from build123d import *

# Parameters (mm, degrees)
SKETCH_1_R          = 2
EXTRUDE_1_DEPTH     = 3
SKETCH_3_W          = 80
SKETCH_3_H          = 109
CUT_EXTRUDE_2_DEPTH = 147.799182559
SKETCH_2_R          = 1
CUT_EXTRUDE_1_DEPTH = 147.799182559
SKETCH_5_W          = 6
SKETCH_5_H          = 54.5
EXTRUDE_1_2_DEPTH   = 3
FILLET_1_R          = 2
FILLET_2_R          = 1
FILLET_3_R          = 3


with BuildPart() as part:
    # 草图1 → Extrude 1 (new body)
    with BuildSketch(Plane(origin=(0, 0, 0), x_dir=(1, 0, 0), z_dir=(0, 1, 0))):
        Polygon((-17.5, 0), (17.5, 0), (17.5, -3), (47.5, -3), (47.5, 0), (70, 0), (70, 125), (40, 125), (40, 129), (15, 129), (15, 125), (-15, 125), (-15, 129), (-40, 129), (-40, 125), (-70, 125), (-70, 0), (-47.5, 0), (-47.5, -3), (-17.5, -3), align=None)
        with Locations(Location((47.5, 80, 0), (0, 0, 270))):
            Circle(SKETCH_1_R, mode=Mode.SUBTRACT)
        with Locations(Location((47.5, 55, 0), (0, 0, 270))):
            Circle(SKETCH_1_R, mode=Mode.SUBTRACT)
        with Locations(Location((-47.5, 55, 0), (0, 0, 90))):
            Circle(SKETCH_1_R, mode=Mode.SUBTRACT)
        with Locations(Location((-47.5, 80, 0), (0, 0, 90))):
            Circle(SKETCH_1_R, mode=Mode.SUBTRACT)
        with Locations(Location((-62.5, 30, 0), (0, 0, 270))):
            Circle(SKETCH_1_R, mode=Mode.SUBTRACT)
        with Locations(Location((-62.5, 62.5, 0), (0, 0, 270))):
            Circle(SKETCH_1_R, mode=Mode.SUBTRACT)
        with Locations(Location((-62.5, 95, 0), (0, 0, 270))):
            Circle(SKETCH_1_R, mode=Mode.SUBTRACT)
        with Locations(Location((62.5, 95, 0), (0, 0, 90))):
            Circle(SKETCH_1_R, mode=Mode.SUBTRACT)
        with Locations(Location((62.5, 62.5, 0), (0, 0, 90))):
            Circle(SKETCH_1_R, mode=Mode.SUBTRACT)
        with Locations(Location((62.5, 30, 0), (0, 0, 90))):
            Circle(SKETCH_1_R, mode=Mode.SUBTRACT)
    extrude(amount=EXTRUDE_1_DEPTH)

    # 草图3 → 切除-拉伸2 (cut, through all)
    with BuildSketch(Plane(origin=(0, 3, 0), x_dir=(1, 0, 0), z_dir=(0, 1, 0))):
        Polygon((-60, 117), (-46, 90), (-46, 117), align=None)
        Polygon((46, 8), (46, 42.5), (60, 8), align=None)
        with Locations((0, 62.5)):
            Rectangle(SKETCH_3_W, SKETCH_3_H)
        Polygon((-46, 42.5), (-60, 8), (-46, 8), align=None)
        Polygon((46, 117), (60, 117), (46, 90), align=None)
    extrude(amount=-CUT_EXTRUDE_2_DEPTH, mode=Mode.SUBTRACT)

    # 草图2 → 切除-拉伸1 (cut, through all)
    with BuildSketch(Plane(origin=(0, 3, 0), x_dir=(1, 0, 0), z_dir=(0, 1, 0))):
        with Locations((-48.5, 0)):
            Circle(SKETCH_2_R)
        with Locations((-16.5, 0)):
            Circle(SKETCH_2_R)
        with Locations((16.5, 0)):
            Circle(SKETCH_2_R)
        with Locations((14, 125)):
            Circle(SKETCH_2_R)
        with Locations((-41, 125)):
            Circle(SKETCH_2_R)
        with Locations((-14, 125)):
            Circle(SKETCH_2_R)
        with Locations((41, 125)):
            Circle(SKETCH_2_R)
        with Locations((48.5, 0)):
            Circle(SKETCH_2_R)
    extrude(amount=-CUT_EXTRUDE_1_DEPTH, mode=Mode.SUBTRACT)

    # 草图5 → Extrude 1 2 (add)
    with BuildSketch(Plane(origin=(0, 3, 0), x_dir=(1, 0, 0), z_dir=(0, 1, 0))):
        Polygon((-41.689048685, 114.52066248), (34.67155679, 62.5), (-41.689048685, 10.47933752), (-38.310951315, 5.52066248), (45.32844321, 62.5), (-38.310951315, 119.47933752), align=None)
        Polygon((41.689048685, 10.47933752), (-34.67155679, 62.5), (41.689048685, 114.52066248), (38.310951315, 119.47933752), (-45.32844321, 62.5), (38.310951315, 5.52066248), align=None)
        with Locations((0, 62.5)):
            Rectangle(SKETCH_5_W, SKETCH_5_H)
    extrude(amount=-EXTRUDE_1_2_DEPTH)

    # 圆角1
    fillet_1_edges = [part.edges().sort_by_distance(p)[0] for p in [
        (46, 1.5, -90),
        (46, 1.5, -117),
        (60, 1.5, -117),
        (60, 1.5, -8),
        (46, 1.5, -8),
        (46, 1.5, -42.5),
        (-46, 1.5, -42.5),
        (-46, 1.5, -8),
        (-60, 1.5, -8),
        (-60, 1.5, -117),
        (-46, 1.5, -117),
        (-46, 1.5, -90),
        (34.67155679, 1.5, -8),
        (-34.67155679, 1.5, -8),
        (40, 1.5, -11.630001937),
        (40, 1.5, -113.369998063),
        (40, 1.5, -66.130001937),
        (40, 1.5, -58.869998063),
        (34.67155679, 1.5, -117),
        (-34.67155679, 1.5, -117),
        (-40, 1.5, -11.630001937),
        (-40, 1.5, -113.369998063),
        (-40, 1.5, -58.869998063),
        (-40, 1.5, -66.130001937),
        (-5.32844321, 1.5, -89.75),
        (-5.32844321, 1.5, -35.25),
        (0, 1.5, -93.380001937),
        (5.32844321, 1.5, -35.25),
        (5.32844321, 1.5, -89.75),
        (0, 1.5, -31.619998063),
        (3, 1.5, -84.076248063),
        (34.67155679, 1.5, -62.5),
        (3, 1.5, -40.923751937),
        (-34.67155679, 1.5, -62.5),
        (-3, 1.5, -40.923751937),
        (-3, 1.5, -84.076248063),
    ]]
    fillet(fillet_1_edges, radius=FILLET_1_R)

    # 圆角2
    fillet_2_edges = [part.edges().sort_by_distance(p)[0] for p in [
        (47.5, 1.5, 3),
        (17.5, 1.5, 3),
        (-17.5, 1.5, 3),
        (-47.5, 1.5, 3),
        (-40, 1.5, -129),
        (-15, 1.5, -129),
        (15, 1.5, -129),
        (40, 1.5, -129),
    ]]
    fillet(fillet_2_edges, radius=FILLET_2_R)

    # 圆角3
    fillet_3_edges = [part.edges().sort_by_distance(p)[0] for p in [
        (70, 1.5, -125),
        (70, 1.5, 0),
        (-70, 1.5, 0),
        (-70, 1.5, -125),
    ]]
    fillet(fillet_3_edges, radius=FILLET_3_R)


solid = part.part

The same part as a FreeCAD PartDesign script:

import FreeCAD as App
import Part
import Sketcher


def edges_at(feature, points):
    """Names of the edges that pass closest to the given points."""
    edges = feature.Shape.Edges
    near = lambda p: min(range(len(edges)), key=lambda i: edges[i].distToShape(Part.Vertex(*p))[0])
    return sorted({f"Edge{near(p) + 1}" for p in points})

doc = App.newDocument("Part")
body = doc.addObject("PartDesign::Body", "Body")

# Sketch on XZ plane
sketch1 = body.newObject("Sketcher::SketchObject", "Sketch")
sketch1.AttachmentSupport = (doc.getObject("XZ_Plane"), [""])
sketch1.MapMode = "FlatFace"
sketch1.addGeometry([
    Part.LineSegment(App.Vector(-17.5, 0, 0), App.Vector(17.5, 0, 0)),  # 0
    Part.LineSegment(App.Vector(17.5, 0, 0), App.Vector(17.5, 3, 0)),  # 1
    Part.LineSegment(App.Vector(17.5, 3, 0), App.Vector(47.5, 3, 0)),  # 2
    Part.LineSegment(App.Vector(47.5, 3, 0), App.Vector(47.5, 0, 0)),  # 3
    Part.LineSegment(App.Vector(47.5, 0, 0), App.Vector(70, 0, 0)),  # 4
    Part.LineSegment(App.Vector(70, 0, 0), App.Vector(70, -125, 0)),  # 5
    Part.LineSegment(App.Vector(70, -125, 0), App.Vector(40, -125, 0)),  # 6
    Part.LineSegment(App.Vector(40, -125, 0), App.Vector(40, -129, 0)),  # 7
    Part.LineSegment(App.Vector(40, -129, 0), App.Vector(15, -129, 0)),  # 8
    Part.LineSegment(App.Vector(15, -129, 0), App.Vector(15, -125, 0)),  # 9
    Part.LineSegment(App.Vector(15, -125, 0), App.Vector(-15, -125, 0)),  # 10
    Part.LineSegment(App.Vector(-15, -125, 0), App.Vector(-15, -129, 0)),  # 11
    Part.LineSegment(App.Vector(-15, -129, 0), App.Vector(-40, -129, 0)),  # 12
    Part.LineSegment(App.Vector(-40, -129, 0), App.Vector(-40, -125, 0)),  # 13
    Part.LineSegment(App.Vector(-40, -125, 0), App.Vector(-70, -125, 0)),  # 14
    Part.LineSegment(App.Vector(-70, -125, 0), App.Vector(-70, 0, 0)),  # 15
    Part.LineSegment(App.Vector(-70, 0, 0), App.Vector(-47.5, 0, 0)),  # 16
    Part.LineSegment(App.Vector(-47.5, 0, 0), App.Vector(-47.5, 3, 0)),  # 17
    Part.LineSegment(App.Vector(-47.5, 3, 0), App.Vector(-17.5, 3, 0)),  # 18
    Part.LineSegment(App.Vector(-17.5, 3, 0), App.Vector(-17.5, 0, 0)),  # 19
    Part.Circle(App.Vector(-62.5, -30, 0), App.Vector(0, 0, 1), 2),  # 20
    Part.Circle(App.Vector(-47.5, -55, 0), App.Vector(0, 0, 1), 2),  # 21
    Part.Circle(App.Vector(62.5, -30, 0), App.Vector(0, 0, 1), 2),  # 22
    Part.Circle(App.Vector(47.5, -55, 0), App.Vector(0, 0, 1), 2),  # 23
    Part.Circle(App.Vector(-62.5, -62.5, 0), App.Vector(0, 0, 1), 2),  # 24
    Part.Circle(App.Vector(-47.5, -80, 0), App.Vector(0, 0, 1), 2),  # 25
    Part.Circle(App.Vector(-62.5, -95, 0), App.Vector(0, 0, 1), 2),  # 26
    Part.Circle(App.Vector(62.5, -62.5, 0), App.Vector(0, 0, 1), 2),  # 27
    Part.Circle(App.Vector(47.5, -80, 0), App.Vector(0, 0, 1), 2),  # 28
    Part.Circle(App.Vector(62.5, -95, 0), App.Vector(0, 0, 1), 2),  # 29
], False)
sketch1.addConstraint([
    Sketcher.Constraint("Coincident", 0, 2, 1, 1),
    Sketcher.Constraint("Coincident", 1, 2, 2, 1),
    Sketcher.Constraint("Coincident", 2, 2, 3, 1),
    Sketcher.Constraint("Coincident", 3, 2, 4, 1),
    Sketcher.Constraint("Coincident", 4, 2, 5, 1),
    Sketcher.Constraint("Coincident", 5, 2, 6, 1),
    Sketcher.Constraint("Coincident", 6, 2, 7, 1),
    Sketcher.Constraint("Coincident", 7, 2, 8, 1),
    Sketcher.Constraint("Coincident", 8, 2, 9, 1),
    Sketcher.Constraint("Coincident", 9, 2, 10, 1),
    Sketcher.Constraint("Coincident", 10, 2, 11, 1),
    Sketcher.Constraint("Coincident", 11, 2, 12, 1),
    Sketcher.Constraint("Coincident", 12, 2, 13, 1),
    Sketcher.Constraint("Coincident", 13, 2, 14, 1),
    Sketcher.Constraint("Coincident", 14, 2, 15, 1),
    Sketcher.Constraint("Coincident", 15, 2, 16, 1),
    Sketcher.Constraint("Coincident", 16, 2, 17, 1),
    Sketcher.Constraint("Coincident", 17, 2, 18, 1),
    Sketcher.Constraint("Coincident", 18, 2, 19, 1),
    Sketcher.Constraint("Coincident", 19, 2, 0, 1),
    Sketcher.Constraint("Horizontal", 0),
    Sketcher.Constraint("Vertical", 1),
    Sketcher.Constraint("Horizontal", 2),
    Sketcher.Constraint("Vertical", 3),
    Sketcher.Constraint("Horizontal", 4),
    Sketcher.Constraint("Vertical", 5),
    Sketcher.Constraint("Horizontal", 6),
    Sketcher.Constraint("Vertical", 7),
    Sketcher.Constraint("Horizontal", 8),
    Sketcher.Constraint("Vertical", 9),
    Sketcher.Constraint("Horizontal", 10),
    Sketcher.Constraint("Vertical", 11),
    Sketcher.Constraint("Horizontal", 12),
    Sketcher.Constraint("Vertical", 13),
    Sketcher.Constraint("Horizontal", 14),
    Sketcher.Constraint("Vertical", 15),
    Sketcher.Constraint("Horizontal", 16),
    Sketcher.Constraint("Vertical", 17),
    Sketcher.Constraint("Horizontal", 18),
    Sketcher.Constraint("Vertical", 19),
    Sketcher.Constraint("Equal", 20, 21),
    Sketcher.Constraint("Equal", 21, 22),
    Sketcher.Constraint("Equal", 22, 23),
    Sketcher.Constraint("Equal", 23, 24),
    Sketcher.Constraint("Equal", 24, 25),
    Sketcher.Constraint("Equal", 25, 26),
    Sketcher.Constraint("Equal", 26, 27),
    Sketcher.Constraint("Equal", 27, 28),
    Sketcher.Constraint("Equal", 28, 29),
    Sketcher.Constraint("Symmetric", 4, 2, 15, 2, -1, 1),
    Sketcher.Constraint("Symmetric", 0, 2, 19, 2, -1, 1),
    Sketcher.Constraint("Symmetric", 20, 3, 22, 3, -2),
    Sketcher.Constraint("Symmetric", 21, 3, 23, 3, -2),
    Sketcher.Constraint("Symmetric", 24, 3, 27, 3, -2),
    Sketcher.Constraint("Symmetric", 25, 3, 28, 3, -2),
    Sketcher.Constraint("Symmetric", 26, 3, 29, 3, -2),
    Sketcher.Constraint("Symmetric", 8, 2, 11, 2, -2),
    Sketcher.Constraint("Symmetric", 6, 2, 13, 2, -2),
    Sketcher.Constraint("Symmetric", 3, 2, 16, 2, -2),
    Sketcher.Constraint("Horizontal", 6, 2, 9, 2),
    Sketcher.Constraint("Horizontal", 2, 2, 17, 2),
    Sketcher.Constraint("Vertical", 20, 3, 24, 3),
    Sketcher.Constraint("Vertical", 21, 3, 25, 3),
    Sketcher.Constraint("Vertical", 24, 3, 26, 3),
    Sketcher.Constraint("Vertical", 28, 3, 2, 2),
    Sketcher.Constraint("Equal", 2, 6),
    Sketcher.Constraint("Equal", 6, 10),
    Sketcher.Constraint("Diameter", 20, 4.0),
    Sketcher.Constraint("DistanceX", 0, 1, 0, 2, 35.0),
    Sketcher.Constraint("DistanceX", 2, 1, 2, 2, 30.0),
    Sketcher.Constraint("DistanceX", 8, 2, 8, 1, 25.0),
    Sketcher.Constraint("DistanceY", 1, 1, 1, 2, 3.0),
    Sketcher.Constraint("DistanceY", 5, 2, 5, 1, 125.0),
    Sketcher.Constraint("DistanceY", 7, 2, 7, 1, 4.0),
    Sketcher.Constraint("DistanceY", 20, 3, -1, 1, 30.0),
    Sketcher.Constraint("DistanceY", 21, 3, -1, 1, 55.0),
    Sketcher.Constraint("DistanceY", 25, 3, -1, 1, 80.0),
    Sketcher.Constraint("DistanceY", 26, 3, -1, 1, 95.0),
    Sketcher.Constraint("DistanceX", 20, 3, 21, 3, 15.0),
    Sketcher.Constraint("DistanceY", 24, 3, -1, 1, 62.5),
])
pad1 = body.newObject("PartDesign::Pad", "Pad")
pad1.Profile = sketch1
pad1.Length = 3
pad1.Reversed = True

# Sketch on XZ plane
sketch2 = body.newObject("Sketcher::SketchObject", "Sketch001")
sketch2.AttachmentSupport = (doc.getObject("XZ_Plane"), [""])
sketch2.MapMode = "FlatFace"
sketch2.AttachmentOffset = App.Placement(App.Vector(0, 0, -3), App.Rotation())
sketch2.addGeometry([
    Part.LineSegment(App.Vector(-60, -117, 0), App.Vector(-46, -90, 0)),  # 0
    Part.LineSegment(App.Vector(-46, -90, 0), App.Vector(-46, -117, 0)),  # 1
    Part.LineSegment(App.Vector(-46, -117, 0), App.Vector(-60, -117, 0)),  # 2
    Part.LineSegment(App.Vector(46, -42, 0), App.Vector(46, -8, 0)),  # 3
    Part.LineSegment(App.Vector(46, -8, 0), App.Vector(60, -8, 0)),  # 4
    Part.LineSegment(App.Vector(60, -8, 0), App.Vector(46, -42, 0)),  # 5
    Part.LineSegment(App.Vector(-40, -117, 0), App.Vector(-40, -8, 0)),  # 6
    Part.LineSegment(App.Vector(-40, -8, 0), App.Vector(40, -8, 0)),  # 7
    Part.LineSegment(App.Vector(40, -8, 0), App.Vector(40, -117, 0)),  # 8
    Part.LineSegment(App.Vector(40, -117, 0), App.Vector(-40, -117, 0)),  # 9
    Part.LineSegment(App.Vector(-46, -42, 0), App.Vector(-60, -8, 0)),  # 10
    Part.LineSegment(App.Vector(-60, -8, 0), App.Vector(-46, -8, 0)),  # 11
    Part.LineSegment(App.Vector(-46, -8, 0), App.Vector(-46, -42, 0)),  # 12
    Part.LineSegment(App.Vector(60, -117, 0), App.Vector(46, -117, 0)),  # 13
    Part.LineSegment(App.Vector(46, -117, 0), App.Vector(46, -90, 0)),  # 14
    Part.LineSegment(App.Vector(46, -90, 0), App.Vector(60, -117, 0)),  # 15
], False)
sketch2.addConstraint([
    Sketcher.Constraint("Coincident", 0, 2, 1, 1),
    Sketcher.Constraint("Coincident", 1, 2, 2, 1),
    Sketcher.Constraint("Coincident", 2, 2, 0, 1),
    Sketcher.Constraint("Coincident", 3, 2, 4, 1),
    Sketcher.Constraint("Coincident", 4, 2, 5, 1),
    Sketcher.Constraint("Coincident", 5, 2, 3, 1),
    Sketcher.Constraint("Coincident", 6, 2, 7, 1),
    Sketcher.Constraint("Coincident", 7, 2, 8, 1),
    Sketcher.Constraint("Coincident", 8, 2, 9, 1),
    Sketcher.Constraint("Coincident", 9, 2, 6, 1),
    Sketcher.Constraint("Coincident", 10, 2, 11, 1),
    Sketcher.Constraint("Coincident", 11, 2, 12, 1),
    Sketcher.Constraint("Coincident", 12, 2, 10, 1),
    Sketcher.Constraint("Coincident", 13, 2, 14, 1),
    Sketcher.Constraint("Coincident", 14, 2, 15, 1),
    Sketcher.Constraint("Coincident", 15, 2, 13, 1),
    Sketcher.Constraint("Vertical", 1),
    Sketcher.Constraint("Horizontal", 2),
    Sketcher.Constraint("Vertical", 3),
    Sketcher.Constraint("Horizontal", 4),
    Sketcher.Constraint("Vertical", 6),
    Sketcher.Constraint("Horizontal", 7),
    Sketcher.Constraint("Vertical", 8),
    Sketcher.Constraint("Horizontal", 9),
    Sketcher.Constraint("Horizontal", 11),
    Sketcher.Constraint("Vertical", 12),
    Sketcher.Constraint("Horizontal", 13),
    Sketcher.Constraint("Vertical", 14),
    Sketcher.Constraint("Symmetric", 4, 2, 10, 2, -2),
    Sketcher.Constraint("Symmetric", 5, 2, 12, 2, -2),
    Sketcher.Constraint("Symmetric", 1, 2, 13, 2, -2),
    Sketcher.Constraint("Horizontal", 4, 2, 6, 2),
    Sketcher.Constraint("Horizontal", 2, 2, 8, 2),
    Sketcher.Constraint("Horizontal", 0, 2, 14, 2),
    Sketcher.Constraint("Vertical", 2, 2, 10, 2),
    Sketcher.Constraint("Vertical", 1, 2, 11, 2),
    Sketcher.Constraint("Vertical", 4, 2, 15, 2),
    Sketcher.Constraint("DistanceX", 2, 2, 2, 1, 14.0),
    Sketcher.Constraint("DistanceX", 7, 1, 7, 2, 80.0),
    Sketcher.Constraint("DistanceY", 1, 2, 1, 1, 27.0),
    Sketcher.Constraint("DistanceY", 6, 1, 6, 2, 109.0),
    Sketcher.Constraint("DistanceY", 3, 1, 3, 2, 34.5),
    Sketcher.Constraint("DistanceX", 0, 2, -1, 1, 46.0),
    Sketcher.Constraint("DistanceY", 0, 2, -1, 1, 90.0),
    Sketcher.Constraint("DistanceX", 6, 2, -1, 1, 40.0),
])
pocket1 = body.newObject("PartDesign::Pocket", "Pocket")
pocket1.Profile = sketch2
pocket1.Type = "ThroughAll"
pocket1.Reversed = True

# Sketch on XZ plane
sketch3 = body.newObject("Sketcher::SketchObject", "Sketch002")
sketch3.AttachmentSupport = (doc.getObject("XZ_Plane"), [""])
sketch3.MapMode = "FlatFace"
sketch3.AttachmentOffset = App.Placement(App.Vector(0, 0, -3), App.Rotation())
sketch3.addGeometry([
    Part.Circle(App.Vector(-48.5, 0, 0), App.Vector(0, 0, 1), 1),  # 0
    Part.Circle(App.Vector(-16.5, 0, 0), App.Vector(0, 0, 1), 1),  # 1
    Part.Circle(App.Vector(16.5, 0, 0), App.Vector(0, 0, 1), 1),  # 2
    Part.Circle(App.Vector(14, -125, 0), App.Vector(0, 0, 1), 1),  # 3
    Part.Circle(App.Vector(-41, -125, 0), App.Vector(0, 0, 1), 1),  # 4
    Part.Circle(App.Vector(-14, -125, 0), App.Vector(0, 0, 1), 1),  # 5
    Part.Circle(App.Vector(41, -125, 0), App.Vector(0, 0, 1), 1),  # 6
    Part.Circle(App.Vector(48.5, 0, 0), App.Vector(0, 0, 1), 1),  # 7
], False)
sketch3.addConstraint([
    Sketcher.Constraint("Equal", 0, 1),
    Sketcher.Constraint("Equal", 1, 2),
    Sketcher.Constraint("Equal", 2, 3),
    Sketcher.Constraint("Equal", 3, 4),
    Sketcher.Constraint("Equal", 4, 5),
    Sketcher.Constraint("Equal", 5, 6),
    Sketcher.Constraint("Equal", 6, 7),
    Sketcher.Constraint("Symmetric", 1, 3, 2, 3, -1, 1),
    Sketcher.Constraint("Symmetric", 0, 3, 7, 3, -1, 1),
    Sketcher.Constraint("Symmetric", 3, 3, 5, 3, -2),
    Sketcher.Constraint("Symmetric", 4, 3, 6, 3, -2),
    Sketcher.Constraint("PointOnObject", 0, 3, -1),
    Sketcher.Constraint("PointOnObject", 1, 3, -1),
    Sketcher.Constraint("Horizontal", 3, 3, 4, 3),
    Sketcher.Constraint("Diameter", 0, 2.0),
    Sketcher.Constraint("DistanceX", -1, 1, 3, 3, 14.0),
    Sketcher.Constraint("DistanceY", 3, 3, -1, 1, 125.0),
    Sketcher.Constraint("DistanceX", 4, 3, -1, 1, 41.0),
    Sketcher.Constraint("DistanceX", 0, 3, 1, 3, 32.0),
    Sketcher.Constraint("DistanceX", 1, 3, 2, 3, 33.0),
])
pocket2 = body.newObject("PartDesign::Pocket", "Pocket001")
pocket2.Profile = sketch3
pocket2.Type = "ThroughAll"
pocket2.Reversed = True

# Sketch on XZ plane
sketch4 = body.newObject("Sketcher::SketchObject", "Sketch003")
sketch4.AttachmentSupport = (doc.getObject("XZ_Plane"), [""])
sketch4.MapMode = "FlatFace"
sketch4.AttachmentOffset = App.Placement(App.Vector(0, 0, -3), App.Rotation())
sketch4.addGeometry([
    Part.LineSegment(App.Vector(-38, -119, 0), App.Vector(-42, -115, 0)),  # 0
    Part.LineSegment(App.Vector(-42, -115, 0), App.Vector(-5, -90, 0)),  # 1
    Part.LineSegment(App.Vector(-5, -90, 0), App.Vector(-45, -62, 0)),  # 2
    Part.LineSegment(App.Vector(-45, -62, 0), App.Vector(-5, -35, 0)),  # 3
    Part.LineSegment(App.Vector(-5, -35, 0), App.Vector(-42, -10, 0)),  # 4
    Part.LineSegment(App.Vector(-42, -10, 0), App.Vector(-38, -6, 0)),  # 5
    Part.LineSegment(App.Vector(-38, -6, 0), App.Vector(0, -32, 0)),  # 6
    Part.LineSegment(App.Vector(0, -32, 0), App.Vector(38, -6, 0)),  # 7
    Part.LineSegment(App.Vector(38, -6, 0), App.Vector(42, -10, 0)),  # 8
    Part.LineSegment(App.Vector(42, -10, 0), App.Vector(5, -35, 0)),  # 9
    Part.LineSegment(App.Vector(5, -35, 0), App.Vector(45, -62, 0)),  # 10
    Part.LineSegment(App.Vector(45, -62, 0), App.Vector(5, -90, 0)),  # 11
    Part.LineSegment(App.Vector(5, -90, 0), App.Vector(42, -115, 0)),  # 12
    Part.LineSegment(App.Vector(42, -115, 0), App.Vector(38, -119, 0)),  # 13
    Part.LineSegment(App.Vector(38, -119, 0), App.Vector(0, -93, 0)),  # 14
    Part.LineSegment(App.Vector(0, -93, 0), App.Vector(-38, -119, 0)),  # 15
    Part.LineSegment(App.Vector(35, -62, 0), App.Vector(3, -41, 0)),  # 16
    Part.LineSegment(App.Vector(3, -41, 0), App.Vector(3, -84, 0)),  # 17
    Part.LineSegment(App.Vector(3, -84, 0), App.Vector(35, -62, 0)),  # 18
    Part.LineSegment(App.Vector(-35, -62, 0), App.Vector(-3, -84, 0)),  # 19
    Part.LineSegment(App.Vector(-3, -84, 0), App.Vector(-3, -41, 0)),  # 20
    Part.LineSegment(App.Vector(-3, -41, 0), App.Vector(-35, -62, 0)),  # 21
], False)
sketch4.addConstraint([
    Sketcher.Constraint("Coincident", 0, 2, 1, 1),
    Sketcher.Constraint("Coincident", 1, 2, 2, 1),
    Sketcher.Constraint("Coincident", 2, 2, 3, 1),
    Sketcher.Constraint("Coincident", 3, 2, 4, 1),
    Sketcher.Constraint("Coincident", 4, 2, 5, 1),
    Sketcher.Constraint("Coincident", 5, 2, 6, 1),
    Sketcher.Constraint("Coincident", 6, 2, 7, 1),
    Sketcher.Constraint("Coincident", 7, 2, 8, 1),
    Sketcher.Constraint("Coincident", 8, 2, 9, 1),
    Sketcher.Constraint("Coincident", 9, 2, 10, 1),
    Sketcher.Constraint("Coincident", 10, 2, 11, 1),
    Sketcher.Constraint("Coincident", 11, 2, 12, 1),
    Sketcher.Constraint("Coincident", 12, 2, 13, 1),
    Sketcher.Constraint("Coincident", 13, 2, 14, 1),
    Sketcher.Constraint("Coincident", 14, 2, 15, 1),
    Sketcher.Constraint("Coincident", 15, 2, 0, 1),
    Sketcher.Constraint("Coincident", 16, 2, 17, 1),
    Sketcher.Constraint("Coincident", 17, 2, 18, 1),
    Sketcher.Constraint("Coincident", 18, 2, 16, 1),
    Sketcher.Constraint("Coincident", 19, 2, 20, 1),
    Sketcher.Constraint("Coincident", 20, 2, 21, 1),
    Sketcher.Constraint("Coincident", 21, 2, 19, 1),
    Sketcher.Constraint("Vertical", 17),
    Sketcher.Constraint("Vertical", 20),
    Sketcher.Constraint("Symmetric", 5, 2, 7, 2, -2),
    Sketcher.Constraint("Symmetric", 4, 2, 8, 2, -2),
    Sketcher.Constraint("Symmetric", 3, 2, 9, 2, -2),
    Sketcher.Constraint("Symmetric", 2, 2, 10, 2, -2),
    Sketcher.Constraint("Symmetric", 1, 2, 11, 2, -2),
    Sketcher.Constraint("Symmetric", 0, 2, 12, 2, -2),
    Sketcher.Constraint("Symmetric", 13, 2, 15, 2, -2),
    Sketcher.Constraint("Symmetric", 17, 2, 19, 2, -2),
    Sketcher.Constraint("Symmetric", 18, 2, 21, 2, -2),
    Sketcher.Constraint("PointOnObject", 6, 2, -2),
    Sketcher.Constraint("PointOnObject", 14, 2, -2),
    Sketcher.Constraint("Perpendicular", 0, 1),
    Sketcher.Constraint("Parallel", 1, 3),
    Sketcher.Constraint("Parallel", 2, 4),
    Sketcher.Constraint("Perpendicular", 4, 5),
    Sketcher.Constraint("Perpendicular", 5, 6),
    Sketcher.Constraint("Parallel", 3, 7),
    Sketcher.Constraint("Perpendicular", 13, 14),
    Sketcher.Constraint("Parallel", 14, 16),
    Sketcher.Constraint("Parallel", 15, 18),
    Sketcher.Constraint("Parallel", 18, 21),
    Sketcher.Constraint("Horizontal", 10, 2, 18, 2),
    Sketcher.Constraint("Vertical", 1, 2, 3, 2),
    Sketcher.Constraint("Vertical", 0, 2, 4, 2),
    Sketcher.Constraint("Vertical", 7, 2, 13, 2),
    Sketcher.Constraint("Distance", 0, 6.0),
    Sketcher.Constraint("DistanceX", -1, 1, 16, 2, 3.0),
    Sketcher.Constraint("DistanceX", 2, 2, 1, 2, 40.0),
    Sketcher.Constraint("DistanceY", 0, 2, 5, 2, 109.0),
    Sketcher.Constraint("DistanceX", 4, 2, 7, 2, 80.0),
    Sketcher.Constraint("DistanceY", 2, 2, -1, 1, 62.5),
    Sketcher.Constraint("DistanceY", 1, 2, 3, 2, 54.5),
    Sketcher.Constraint("DistanceY", 17, 2, 17, 1, 43.152496),
])
pad2 = body.newObject("PartDesign::Pad", "Pad001")
pad2.Profile = sketch4
pad2.Length = 3
doc.recompute()

fillet = body.newObject("PartDesign::Fillet", "Fillet")
fillet.Base = (pad2, edges_at(pad2, [
    (46, 1.5, -90),
    (46, 1.5, -117),
    (60, 1.5, -117),
    (60, 1.5, -8),
    (46, 1.5, -8),
    (46, 1.5, -42.5),
    (-46, 1.5, -42.5),
    (-46, 1.5, -8),
    (-60, 1.5, -8),
    (-60, 1.5, -117),
    (-46, 1.5, -117),
    (-46, 1.5, -90),
    (34.672, 1.5, -8),
    (-34.672, 1.5, -8),
    (40, 1.5, -11.63),
    (40, 1.5, -113.37),
    (40, 1.5, -66.13),
    (40, 1.5, -58.87),
    (34.672, 1.5, -117),
    (-34.672, 1.5, -117),
    (-40, 1.5, -11.63),
    (-40, 1.5, -113.37),
    (-40, 1.5, -58.87),
    (-40, 1.5, -66.13),
    (-5.328, 1.5, -89.75),
    (-5.328, 1.5, -35.25),
    (0, 1.5, -93.38),
    (5.328, 1.5, -35.25),
    (5.328, 1.5, -89.75),
    (0, 1.5, -31.62),
    (3, 1.5, -84.076),
    (34.672, 1.5, -62.5),
    (3, 1.5, -40.924),
    (-34.672, 1.5, -62.5),
    (-3, 1.5, -40.924),
    (-3, 1.5, -84.076),
]))
fillet.Radius = 2
doc.recompute()

fillet2 = body.newObject("PartDesign::Fillet", "Fillet001")
fillet2.Base = (fillet, edges_at(fillet, [
    (47.5, 1.5, 3),
    (17.5, 1.5, 3),
    (-17.5, 1.5, 3),
    (-47.5, 1.5, 3),
    (-40, 1.5, -129),
    (-15, 1.5, -129),
    (15, 1.5, -129),
    (40, 1.5, -129),
]))
fillet2.Radius = 1
doc.recompute()

fillet3 = body.newObject("PartDesign::Fillet", "Fillet002")
fillet3.Base = (fillet2, edges_at(fillet2, [
    (70, 1.5, -125),
    (70, 1.5, 0),
    (-70, 1.5, 0),
    (-70, 1.5, -125),
]))
fillet3.Radius = 3

doc.recompute()
